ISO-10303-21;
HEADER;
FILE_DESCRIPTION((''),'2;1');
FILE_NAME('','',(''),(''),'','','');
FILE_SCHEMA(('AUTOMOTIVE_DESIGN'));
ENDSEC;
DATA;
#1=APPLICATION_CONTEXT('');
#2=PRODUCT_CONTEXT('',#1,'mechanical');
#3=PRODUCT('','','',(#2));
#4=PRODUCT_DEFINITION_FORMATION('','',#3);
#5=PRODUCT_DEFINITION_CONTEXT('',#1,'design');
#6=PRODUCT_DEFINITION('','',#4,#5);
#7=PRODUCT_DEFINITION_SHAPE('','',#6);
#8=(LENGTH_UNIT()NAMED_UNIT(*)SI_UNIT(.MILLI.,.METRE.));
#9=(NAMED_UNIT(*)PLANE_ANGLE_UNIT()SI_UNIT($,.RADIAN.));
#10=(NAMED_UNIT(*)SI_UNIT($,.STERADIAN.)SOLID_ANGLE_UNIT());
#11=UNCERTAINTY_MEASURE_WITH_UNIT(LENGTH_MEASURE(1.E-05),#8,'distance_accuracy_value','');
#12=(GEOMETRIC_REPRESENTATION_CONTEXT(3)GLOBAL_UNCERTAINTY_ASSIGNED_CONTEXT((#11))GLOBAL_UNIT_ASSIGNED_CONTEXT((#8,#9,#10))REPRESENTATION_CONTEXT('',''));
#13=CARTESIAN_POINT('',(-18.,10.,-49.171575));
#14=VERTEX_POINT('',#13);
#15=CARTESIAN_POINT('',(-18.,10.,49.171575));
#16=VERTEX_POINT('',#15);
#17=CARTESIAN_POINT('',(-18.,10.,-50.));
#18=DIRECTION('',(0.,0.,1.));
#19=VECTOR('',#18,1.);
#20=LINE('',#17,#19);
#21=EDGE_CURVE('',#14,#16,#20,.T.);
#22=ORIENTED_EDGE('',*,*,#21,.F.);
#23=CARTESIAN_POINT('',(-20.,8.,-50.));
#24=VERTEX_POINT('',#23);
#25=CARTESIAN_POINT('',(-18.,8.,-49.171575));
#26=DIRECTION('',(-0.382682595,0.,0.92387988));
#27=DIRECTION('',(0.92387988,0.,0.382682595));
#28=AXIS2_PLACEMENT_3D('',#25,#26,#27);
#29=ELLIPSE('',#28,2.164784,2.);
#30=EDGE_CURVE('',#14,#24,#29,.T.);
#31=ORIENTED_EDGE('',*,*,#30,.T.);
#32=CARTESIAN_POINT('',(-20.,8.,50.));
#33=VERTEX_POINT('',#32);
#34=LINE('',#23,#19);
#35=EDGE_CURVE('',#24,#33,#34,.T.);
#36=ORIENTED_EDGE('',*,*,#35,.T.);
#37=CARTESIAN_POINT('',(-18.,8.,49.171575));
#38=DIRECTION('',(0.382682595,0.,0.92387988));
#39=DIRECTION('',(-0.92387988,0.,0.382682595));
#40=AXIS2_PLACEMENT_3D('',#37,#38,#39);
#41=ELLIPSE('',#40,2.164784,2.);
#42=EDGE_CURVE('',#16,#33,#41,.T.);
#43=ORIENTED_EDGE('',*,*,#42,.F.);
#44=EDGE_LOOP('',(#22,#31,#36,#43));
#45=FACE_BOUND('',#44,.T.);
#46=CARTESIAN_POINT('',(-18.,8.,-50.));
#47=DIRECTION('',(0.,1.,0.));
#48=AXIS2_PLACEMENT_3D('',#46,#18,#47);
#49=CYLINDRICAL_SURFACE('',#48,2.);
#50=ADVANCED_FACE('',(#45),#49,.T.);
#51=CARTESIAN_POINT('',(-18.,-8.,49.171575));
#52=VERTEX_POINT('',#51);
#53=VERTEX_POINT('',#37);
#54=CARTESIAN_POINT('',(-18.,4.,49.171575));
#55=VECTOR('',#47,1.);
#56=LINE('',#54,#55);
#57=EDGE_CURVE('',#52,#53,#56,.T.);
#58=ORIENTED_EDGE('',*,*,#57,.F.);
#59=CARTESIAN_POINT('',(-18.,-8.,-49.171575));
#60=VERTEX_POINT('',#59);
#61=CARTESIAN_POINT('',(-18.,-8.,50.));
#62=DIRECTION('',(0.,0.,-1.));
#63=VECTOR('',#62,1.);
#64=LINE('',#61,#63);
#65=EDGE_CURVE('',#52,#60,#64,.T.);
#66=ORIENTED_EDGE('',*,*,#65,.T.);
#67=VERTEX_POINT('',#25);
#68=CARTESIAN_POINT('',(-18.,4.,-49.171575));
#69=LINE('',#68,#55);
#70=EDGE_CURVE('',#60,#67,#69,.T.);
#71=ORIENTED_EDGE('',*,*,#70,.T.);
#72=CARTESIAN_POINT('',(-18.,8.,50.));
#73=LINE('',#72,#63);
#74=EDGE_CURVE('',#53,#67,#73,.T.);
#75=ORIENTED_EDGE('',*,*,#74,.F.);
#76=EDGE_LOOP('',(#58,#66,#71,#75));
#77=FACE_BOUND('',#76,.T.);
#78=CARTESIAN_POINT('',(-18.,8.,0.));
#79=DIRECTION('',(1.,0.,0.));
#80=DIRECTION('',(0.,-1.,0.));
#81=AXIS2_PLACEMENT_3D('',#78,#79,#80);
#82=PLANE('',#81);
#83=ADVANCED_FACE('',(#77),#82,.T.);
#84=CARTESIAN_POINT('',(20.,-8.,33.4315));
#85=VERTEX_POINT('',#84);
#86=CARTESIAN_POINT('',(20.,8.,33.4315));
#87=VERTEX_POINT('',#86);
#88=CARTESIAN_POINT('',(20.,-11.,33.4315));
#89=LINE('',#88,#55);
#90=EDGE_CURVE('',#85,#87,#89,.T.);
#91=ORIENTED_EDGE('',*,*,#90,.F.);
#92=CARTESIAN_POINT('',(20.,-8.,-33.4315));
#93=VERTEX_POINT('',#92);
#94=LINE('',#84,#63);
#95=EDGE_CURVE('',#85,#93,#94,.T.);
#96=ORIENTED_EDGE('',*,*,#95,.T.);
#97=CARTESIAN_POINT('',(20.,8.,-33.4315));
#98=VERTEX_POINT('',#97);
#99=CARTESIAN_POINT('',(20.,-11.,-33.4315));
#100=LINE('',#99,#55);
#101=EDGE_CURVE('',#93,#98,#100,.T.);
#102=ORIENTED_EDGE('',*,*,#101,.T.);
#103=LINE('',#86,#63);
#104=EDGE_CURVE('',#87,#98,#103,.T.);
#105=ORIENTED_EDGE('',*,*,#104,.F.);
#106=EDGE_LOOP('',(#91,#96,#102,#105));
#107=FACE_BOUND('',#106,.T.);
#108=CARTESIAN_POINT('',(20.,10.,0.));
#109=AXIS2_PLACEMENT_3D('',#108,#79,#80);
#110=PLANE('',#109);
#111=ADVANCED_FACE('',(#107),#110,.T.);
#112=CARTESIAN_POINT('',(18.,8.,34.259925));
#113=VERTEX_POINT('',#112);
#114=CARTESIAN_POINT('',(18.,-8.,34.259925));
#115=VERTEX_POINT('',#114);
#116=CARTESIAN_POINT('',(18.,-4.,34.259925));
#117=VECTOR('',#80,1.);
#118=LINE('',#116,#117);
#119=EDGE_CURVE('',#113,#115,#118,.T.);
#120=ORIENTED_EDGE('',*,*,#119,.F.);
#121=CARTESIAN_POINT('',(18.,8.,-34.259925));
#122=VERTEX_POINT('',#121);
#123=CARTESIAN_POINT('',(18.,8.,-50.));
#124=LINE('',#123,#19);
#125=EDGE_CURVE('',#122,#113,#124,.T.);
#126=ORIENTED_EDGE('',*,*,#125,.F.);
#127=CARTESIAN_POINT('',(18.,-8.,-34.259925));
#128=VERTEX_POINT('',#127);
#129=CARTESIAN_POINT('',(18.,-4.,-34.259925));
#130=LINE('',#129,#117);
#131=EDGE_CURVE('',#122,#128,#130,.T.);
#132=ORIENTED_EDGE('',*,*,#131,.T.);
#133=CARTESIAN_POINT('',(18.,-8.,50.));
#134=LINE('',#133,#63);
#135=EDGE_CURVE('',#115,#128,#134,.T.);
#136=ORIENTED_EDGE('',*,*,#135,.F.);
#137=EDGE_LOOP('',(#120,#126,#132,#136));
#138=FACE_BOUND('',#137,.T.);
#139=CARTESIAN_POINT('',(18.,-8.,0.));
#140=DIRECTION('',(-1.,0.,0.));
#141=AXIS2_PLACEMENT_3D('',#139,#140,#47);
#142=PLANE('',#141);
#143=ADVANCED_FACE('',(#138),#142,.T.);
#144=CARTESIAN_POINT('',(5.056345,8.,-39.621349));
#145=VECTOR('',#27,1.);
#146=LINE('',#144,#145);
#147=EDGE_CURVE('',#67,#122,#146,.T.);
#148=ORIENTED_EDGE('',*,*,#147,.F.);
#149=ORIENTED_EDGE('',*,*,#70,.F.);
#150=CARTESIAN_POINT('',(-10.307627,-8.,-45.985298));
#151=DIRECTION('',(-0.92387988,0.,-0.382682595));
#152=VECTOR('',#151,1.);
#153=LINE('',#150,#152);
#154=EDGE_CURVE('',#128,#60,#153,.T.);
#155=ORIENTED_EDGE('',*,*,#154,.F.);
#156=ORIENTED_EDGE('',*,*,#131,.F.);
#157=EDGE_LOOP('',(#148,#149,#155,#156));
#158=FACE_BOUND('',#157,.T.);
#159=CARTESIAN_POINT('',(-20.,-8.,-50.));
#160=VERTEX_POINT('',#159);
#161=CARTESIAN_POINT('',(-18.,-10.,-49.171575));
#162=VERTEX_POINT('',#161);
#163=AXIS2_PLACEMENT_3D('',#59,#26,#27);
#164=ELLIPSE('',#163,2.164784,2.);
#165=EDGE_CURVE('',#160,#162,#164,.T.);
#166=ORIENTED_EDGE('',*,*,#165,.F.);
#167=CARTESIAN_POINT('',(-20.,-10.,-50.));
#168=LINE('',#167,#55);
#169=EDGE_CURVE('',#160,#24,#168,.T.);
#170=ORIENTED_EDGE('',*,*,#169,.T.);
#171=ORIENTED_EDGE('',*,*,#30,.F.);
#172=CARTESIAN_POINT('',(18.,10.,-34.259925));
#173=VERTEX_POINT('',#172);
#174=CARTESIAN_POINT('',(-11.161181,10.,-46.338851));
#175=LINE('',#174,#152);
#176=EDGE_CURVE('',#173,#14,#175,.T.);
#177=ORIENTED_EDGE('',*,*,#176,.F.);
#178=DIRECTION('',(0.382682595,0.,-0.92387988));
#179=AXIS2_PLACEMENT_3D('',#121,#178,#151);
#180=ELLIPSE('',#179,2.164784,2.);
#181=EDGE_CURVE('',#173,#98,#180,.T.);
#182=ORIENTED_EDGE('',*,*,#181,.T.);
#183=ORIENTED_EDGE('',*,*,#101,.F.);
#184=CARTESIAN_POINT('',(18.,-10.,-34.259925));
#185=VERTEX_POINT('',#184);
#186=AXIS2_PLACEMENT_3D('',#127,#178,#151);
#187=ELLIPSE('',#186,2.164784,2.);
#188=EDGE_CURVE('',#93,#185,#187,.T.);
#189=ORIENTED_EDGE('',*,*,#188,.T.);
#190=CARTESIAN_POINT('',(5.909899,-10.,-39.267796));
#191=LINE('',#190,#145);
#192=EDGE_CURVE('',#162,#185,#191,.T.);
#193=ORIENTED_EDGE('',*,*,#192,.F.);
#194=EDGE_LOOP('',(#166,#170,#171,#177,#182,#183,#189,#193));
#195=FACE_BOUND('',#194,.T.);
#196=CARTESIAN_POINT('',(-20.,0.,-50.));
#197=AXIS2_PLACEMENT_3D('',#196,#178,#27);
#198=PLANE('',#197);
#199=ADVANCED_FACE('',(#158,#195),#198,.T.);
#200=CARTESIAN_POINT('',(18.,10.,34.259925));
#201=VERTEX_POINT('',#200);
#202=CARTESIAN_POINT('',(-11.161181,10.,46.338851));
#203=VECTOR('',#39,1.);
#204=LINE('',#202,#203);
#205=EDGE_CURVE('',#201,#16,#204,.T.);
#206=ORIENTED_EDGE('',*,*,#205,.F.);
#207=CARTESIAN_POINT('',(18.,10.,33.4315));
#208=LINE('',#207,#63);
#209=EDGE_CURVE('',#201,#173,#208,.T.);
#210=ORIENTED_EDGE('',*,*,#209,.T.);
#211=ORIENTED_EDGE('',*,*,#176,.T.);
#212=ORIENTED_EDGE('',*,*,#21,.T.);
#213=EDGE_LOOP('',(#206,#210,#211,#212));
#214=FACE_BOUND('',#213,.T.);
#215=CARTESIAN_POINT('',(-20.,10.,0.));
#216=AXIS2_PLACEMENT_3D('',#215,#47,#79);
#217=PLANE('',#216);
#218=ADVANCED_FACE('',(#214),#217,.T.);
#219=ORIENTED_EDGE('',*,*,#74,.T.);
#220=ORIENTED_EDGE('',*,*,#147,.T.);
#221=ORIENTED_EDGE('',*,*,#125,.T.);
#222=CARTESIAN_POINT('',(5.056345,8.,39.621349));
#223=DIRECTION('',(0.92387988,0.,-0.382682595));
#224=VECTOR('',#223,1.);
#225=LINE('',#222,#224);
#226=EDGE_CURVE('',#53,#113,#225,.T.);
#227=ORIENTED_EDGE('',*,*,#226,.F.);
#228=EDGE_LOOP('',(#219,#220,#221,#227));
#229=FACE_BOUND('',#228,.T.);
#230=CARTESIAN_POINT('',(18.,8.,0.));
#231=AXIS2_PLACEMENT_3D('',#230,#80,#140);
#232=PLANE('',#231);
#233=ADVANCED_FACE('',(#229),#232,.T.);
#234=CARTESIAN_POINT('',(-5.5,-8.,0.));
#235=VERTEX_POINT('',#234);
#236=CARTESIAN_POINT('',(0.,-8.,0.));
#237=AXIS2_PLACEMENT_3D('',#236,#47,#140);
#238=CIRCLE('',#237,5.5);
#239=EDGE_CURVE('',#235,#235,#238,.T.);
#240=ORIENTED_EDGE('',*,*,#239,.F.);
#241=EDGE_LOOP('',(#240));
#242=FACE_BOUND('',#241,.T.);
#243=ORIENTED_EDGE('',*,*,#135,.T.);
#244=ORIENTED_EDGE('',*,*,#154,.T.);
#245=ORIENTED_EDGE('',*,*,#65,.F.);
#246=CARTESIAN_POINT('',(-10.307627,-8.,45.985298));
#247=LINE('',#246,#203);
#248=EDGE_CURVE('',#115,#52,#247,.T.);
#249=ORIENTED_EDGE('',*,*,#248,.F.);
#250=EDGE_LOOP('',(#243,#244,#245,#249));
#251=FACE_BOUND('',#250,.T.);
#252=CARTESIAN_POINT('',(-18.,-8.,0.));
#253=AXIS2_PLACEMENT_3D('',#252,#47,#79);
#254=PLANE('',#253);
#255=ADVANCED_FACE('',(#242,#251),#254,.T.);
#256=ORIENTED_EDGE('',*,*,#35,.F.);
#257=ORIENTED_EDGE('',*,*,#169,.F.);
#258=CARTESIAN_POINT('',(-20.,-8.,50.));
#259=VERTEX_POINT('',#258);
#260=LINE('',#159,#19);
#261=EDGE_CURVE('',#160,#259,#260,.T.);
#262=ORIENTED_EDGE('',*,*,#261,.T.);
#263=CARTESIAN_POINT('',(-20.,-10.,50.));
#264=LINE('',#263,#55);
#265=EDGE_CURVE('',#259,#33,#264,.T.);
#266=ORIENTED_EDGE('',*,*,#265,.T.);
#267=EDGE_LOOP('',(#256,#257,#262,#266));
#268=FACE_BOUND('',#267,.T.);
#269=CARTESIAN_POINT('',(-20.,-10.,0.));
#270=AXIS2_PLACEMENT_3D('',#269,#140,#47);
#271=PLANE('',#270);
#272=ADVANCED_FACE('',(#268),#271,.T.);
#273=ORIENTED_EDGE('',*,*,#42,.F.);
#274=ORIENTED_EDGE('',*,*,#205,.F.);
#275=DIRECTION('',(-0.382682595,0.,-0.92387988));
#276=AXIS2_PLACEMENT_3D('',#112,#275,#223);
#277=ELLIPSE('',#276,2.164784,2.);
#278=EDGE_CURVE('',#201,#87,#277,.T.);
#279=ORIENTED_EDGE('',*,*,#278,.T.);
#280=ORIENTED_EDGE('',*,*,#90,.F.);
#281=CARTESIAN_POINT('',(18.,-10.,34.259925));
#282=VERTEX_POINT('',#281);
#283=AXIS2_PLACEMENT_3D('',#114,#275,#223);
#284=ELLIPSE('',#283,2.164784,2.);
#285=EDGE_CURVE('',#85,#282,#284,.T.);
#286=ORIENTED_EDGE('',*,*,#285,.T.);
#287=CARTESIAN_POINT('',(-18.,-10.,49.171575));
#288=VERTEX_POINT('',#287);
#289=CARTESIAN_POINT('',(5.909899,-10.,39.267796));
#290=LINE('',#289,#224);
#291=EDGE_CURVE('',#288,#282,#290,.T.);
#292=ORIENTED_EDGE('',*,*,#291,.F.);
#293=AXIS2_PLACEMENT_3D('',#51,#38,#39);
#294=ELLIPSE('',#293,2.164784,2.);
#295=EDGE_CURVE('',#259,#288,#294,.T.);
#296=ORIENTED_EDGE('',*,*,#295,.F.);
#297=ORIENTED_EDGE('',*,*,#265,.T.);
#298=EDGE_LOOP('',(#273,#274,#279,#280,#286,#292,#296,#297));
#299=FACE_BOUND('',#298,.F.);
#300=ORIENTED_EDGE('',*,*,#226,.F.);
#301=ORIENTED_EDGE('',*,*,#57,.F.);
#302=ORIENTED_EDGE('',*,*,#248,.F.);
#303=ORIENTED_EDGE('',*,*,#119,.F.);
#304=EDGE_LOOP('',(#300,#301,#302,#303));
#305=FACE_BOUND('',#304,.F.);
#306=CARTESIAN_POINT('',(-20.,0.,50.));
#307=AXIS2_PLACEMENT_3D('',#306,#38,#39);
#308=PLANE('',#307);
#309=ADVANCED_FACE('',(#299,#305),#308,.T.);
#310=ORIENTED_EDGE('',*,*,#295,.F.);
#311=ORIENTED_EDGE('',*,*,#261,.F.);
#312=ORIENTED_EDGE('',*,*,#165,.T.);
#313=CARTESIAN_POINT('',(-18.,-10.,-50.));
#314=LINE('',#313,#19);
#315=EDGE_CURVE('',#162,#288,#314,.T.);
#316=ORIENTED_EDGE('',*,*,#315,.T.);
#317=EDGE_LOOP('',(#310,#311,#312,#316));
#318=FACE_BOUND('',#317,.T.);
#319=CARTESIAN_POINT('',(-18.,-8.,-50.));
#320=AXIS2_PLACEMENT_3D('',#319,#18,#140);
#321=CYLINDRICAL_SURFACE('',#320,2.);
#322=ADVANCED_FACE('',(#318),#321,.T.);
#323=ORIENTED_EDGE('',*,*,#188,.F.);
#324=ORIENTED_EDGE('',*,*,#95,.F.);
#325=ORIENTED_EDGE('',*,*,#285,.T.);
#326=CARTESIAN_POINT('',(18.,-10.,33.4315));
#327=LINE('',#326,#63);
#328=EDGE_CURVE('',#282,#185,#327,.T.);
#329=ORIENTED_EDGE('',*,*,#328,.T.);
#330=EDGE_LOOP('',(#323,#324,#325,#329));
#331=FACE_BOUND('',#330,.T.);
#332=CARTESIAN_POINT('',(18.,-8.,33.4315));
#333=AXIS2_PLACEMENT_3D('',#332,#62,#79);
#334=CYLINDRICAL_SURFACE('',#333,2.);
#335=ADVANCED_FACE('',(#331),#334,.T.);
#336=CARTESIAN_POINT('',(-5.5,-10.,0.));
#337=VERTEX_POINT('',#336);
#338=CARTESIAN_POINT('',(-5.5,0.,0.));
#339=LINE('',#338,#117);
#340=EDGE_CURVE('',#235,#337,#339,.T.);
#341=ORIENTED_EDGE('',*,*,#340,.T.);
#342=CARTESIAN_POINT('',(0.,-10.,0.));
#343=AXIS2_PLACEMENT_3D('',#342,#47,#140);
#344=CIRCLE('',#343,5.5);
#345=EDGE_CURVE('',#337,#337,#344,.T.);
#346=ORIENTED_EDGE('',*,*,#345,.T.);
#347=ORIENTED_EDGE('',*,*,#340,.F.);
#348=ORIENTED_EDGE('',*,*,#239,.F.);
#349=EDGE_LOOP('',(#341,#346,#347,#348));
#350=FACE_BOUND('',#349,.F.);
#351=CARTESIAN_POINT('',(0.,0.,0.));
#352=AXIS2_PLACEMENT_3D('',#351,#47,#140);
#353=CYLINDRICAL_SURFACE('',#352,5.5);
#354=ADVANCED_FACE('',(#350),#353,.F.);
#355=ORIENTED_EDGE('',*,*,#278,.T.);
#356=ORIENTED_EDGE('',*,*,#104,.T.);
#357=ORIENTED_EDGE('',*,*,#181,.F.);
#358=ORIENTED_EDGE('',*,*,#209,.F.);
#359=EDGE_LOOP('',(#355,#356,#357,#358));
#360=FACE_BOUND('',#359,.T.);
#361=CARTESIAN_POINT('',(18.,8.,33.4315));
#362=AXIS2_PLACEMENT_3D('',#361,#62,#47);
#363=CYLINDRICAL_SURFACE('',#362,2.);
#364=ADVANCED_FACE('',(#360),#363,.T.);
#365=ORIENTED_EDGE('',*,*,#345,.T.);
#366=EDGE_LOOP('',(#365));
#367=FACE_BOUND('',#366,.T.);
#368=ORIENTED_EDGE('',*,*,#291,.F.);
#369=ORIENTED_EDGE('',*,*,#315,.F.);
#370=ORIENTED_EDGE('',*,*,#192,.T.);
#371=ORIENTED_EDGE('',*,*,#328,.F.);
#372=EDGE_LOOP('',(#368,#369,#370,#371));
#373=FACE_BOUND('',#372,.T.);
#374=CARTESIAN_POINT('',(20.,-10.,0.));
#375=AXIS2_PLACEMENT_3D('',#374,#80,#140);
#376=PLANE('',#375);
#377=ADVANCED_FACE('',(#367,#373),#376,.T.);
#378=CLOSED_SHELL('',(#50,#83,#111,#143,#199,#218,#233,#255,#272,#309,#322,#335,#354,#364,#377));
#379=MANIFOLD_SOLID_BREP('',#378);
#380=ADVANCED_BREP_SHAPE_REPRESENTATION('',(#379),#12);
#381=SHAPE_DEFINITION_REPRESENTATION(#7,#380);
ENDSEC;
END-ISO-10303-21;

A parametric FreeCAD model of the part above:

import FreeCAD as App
import Part
import Sketcher
from FreeCAD import Vector
Q = App.Units.Quantity


def edges_at(feature, points):
    """Names of the edges that pass closest to the given points."""
    edges = feature.Shape.Edges
    near = lambda p: min(range(len(edges)), key=lambda i: edges[i].distToShape(Part.Vertex(*p))[0])
    return sorted({f"Edge{near(p) + 1}" for p in points})


def add_polygon(sketch, points):
    """Adds a closed chain of lines whose ends are joined by coincident constraints."""
    first, n = sketch.GeometryCount, len(points)
    for a, b in zip(points, points[1:] + points[:1]):
        sketch.addGeometry(Part.LineSegment(App.Vector(*a, 0), App.Vector(*b, 0)), False)
    for i in range(n):
        sketch.addConstraint(Sketcher.Constraint("Coincident", first + i, 2, first + (i + 1) % n, 1))

doc = App.newDocument("Part")
params = doc.addObject("Spreadsheet::Sheet", "Params")
for row, (alias, value) in enumerate([
    ("sketch1_width", "40 mm"),
    ("sketch1_height", "20 mm"),
    ("pad1_length", "100 mm"),
    ("sketch2_width", "40 mm"),
    ("fillet_radius", "2 mm"),
    ("sketch3_diameter", "11 mm"),
], start=1):
    params.set(f"A{row}", alias)
    params.set(f"B{row}", "=" + value)
    params.setAlias(f"B{row}", alias)

body = doc.addObject("PartDesign::Body", "Body")

sketch1 = body.newObject("Sketcher::SketchObject", "Sketch")
sketch1.AttachmentSupport = (doc.getObject("XY_Plane"), [""])
sketch1.MapMode = "FlatFace"
add_polygon(sketch1, [(20, 10), (-20, 10), (-20, -10), (20, -10)])
add_polygon(sketch1, [(-18, 8), (18, 8), (18, -8), (-18, -8)])
sketch1.addConstraint(Sketcher.Constraint("Horizontal", 0))
sketch1.addConstraint(Sketcher.Constraint("Vertical", 1))
sketch1.addConstraint(Sketcher.Constraint("Horizontal", 2))
sketch1.addConstraint(Sketcher.Constraint("Vertical", 3))
sketch1.addConstraint(Sketcher.Constraint("Horizontal", 4))
sketch1.addConstraint(Sketcher.Constraint("Vertical", 5))
sketch1.addConstraint(Sketcher.Constraint("Horizontal", 6))
sketch1.addConstraint(Sketcher.Constraint("Vertical", 7))
sketch1.addConstraint(Sketcher.Constraint("Symmetric", 0, 2, 2, 2, -1, 1))
sketch1.addConstraint(Sketcher.Constraint("Symmetric", 4, 2, 6, 2, -1, 1))
sketch1.addConstraint(Sketcher.Constraint("DistanceX", 0, 2, 0, 1, Q("40 mm")))
sketch1.addConstraint(Sketcher.Constraint("DistanceY", 1, 2, 1, 1, Q("20 mm")))
sketch1.addConstraint(Sketcher.Constraint("DistanceX", 4, 2, 3, 2, Q("2 mm")))
sketch1.addConstraint(Sketcher.Constraint("DistanceY", 4, 2, 3, 2, Q("2 mm")))
sketch1.setExpression("Constraints[18]", "Params.sketch1_width")
sketch1.setExpression("Constraints[19]", "Params.sketch1_height")
pad1 = body.newObject("PartDesign::Pad", "Pad")
pad1.Profile = sketch1
pad1.setExpression("Length", "Params.pad1_length")
pad1.Midplane = True

sketch2 = body.newObject("Sketcher::SketchObject", "Sketch001")
sketch2.AttachmentSupport = (doc.getObject("XZ_Plane"), [""])
sketch2.MapMode = "FlatFace"
add_polygon(sketch2, [(20, -50), (-20, -50), (20, -33)])
sketch2.addConstraint(Sketcher.Constraint("Horizontal", 0))
sketch2.addConstraint(Sketcher.Constraint("Vertical", 2))
sketch2.addConstraint(Sketcher.Constraint("Angle", 1, Q("22.5 deg")))
sketch2.addConstraint(Sketcher.Constraint("DistanceX", 0, 2, 0, 1, Q("40 mm")))
sketch2.addConstraint(Sketcher.Constraint("DistanceX", 0, 2, -1, 1, Q("20 mm")))
sketch2.addConstraint(Sketcher.Constraint("DistanceY", 0, 2, -1, 1, Q("50 mm")))
sketch2.setExpression("Constraints[6]", "Params.sketch2_width")
pocket1 = body.newObject("PartDesign::Pocket", "Pocket")
pocket1.Profile = sketch2
pocket1.Type = "ThroughAll"
pocket1.Midplane = True
doc.recompute()

mirrored = body.newObject("PartDesign::Mirrored", "Mirrored")
mirrored.Originals = [pocket1]
mirrored.MirrorPlane = (doc.getObject("XY_Plane"), [""])
body.Tip = mirrored
doc.recompute()

fillet = body.newObject("PartDesign::Fillet", "Fillet")
fillet.Base = (mirrored, edges_at(mirrored, [
    (-20, 10, 0),
    (-20, -10, 0),
    (20, -10, 0),
    (20, 10, 0),
]))
fillet.setExpression("Radius", "Params.fillet_radius")

sketch3 = body.newObject("Sketcher::SketchObject", "Sketch002")
sketch3.AttachmentSupport = (doc.getObject("XZ_Plane"), [""])
sketch3.MapMode = "FlatFace"
sketch3.addGeometry(Part.Circle(Vector(0, 0, 0), Vector(0, 0, 1), 6), False)
sketch3.addConstraint(Sketcher.Constraint("Coincident", 0, 3, -1, 1))
sketch3.addConstraint(Sketcher.Constraint("Diameter", 0, Q("11 mm")))
sketch3.setExpression("Constraints[1]", "Params.sketch3_diameter")
pocket2 = body.newObject("PartDesign::Pocket", "Pocket001")
pocket2.Profile = sketch3
pocket2.Type = "ThroughAll"
pocket2.Reversed = True

doc.recompute()
